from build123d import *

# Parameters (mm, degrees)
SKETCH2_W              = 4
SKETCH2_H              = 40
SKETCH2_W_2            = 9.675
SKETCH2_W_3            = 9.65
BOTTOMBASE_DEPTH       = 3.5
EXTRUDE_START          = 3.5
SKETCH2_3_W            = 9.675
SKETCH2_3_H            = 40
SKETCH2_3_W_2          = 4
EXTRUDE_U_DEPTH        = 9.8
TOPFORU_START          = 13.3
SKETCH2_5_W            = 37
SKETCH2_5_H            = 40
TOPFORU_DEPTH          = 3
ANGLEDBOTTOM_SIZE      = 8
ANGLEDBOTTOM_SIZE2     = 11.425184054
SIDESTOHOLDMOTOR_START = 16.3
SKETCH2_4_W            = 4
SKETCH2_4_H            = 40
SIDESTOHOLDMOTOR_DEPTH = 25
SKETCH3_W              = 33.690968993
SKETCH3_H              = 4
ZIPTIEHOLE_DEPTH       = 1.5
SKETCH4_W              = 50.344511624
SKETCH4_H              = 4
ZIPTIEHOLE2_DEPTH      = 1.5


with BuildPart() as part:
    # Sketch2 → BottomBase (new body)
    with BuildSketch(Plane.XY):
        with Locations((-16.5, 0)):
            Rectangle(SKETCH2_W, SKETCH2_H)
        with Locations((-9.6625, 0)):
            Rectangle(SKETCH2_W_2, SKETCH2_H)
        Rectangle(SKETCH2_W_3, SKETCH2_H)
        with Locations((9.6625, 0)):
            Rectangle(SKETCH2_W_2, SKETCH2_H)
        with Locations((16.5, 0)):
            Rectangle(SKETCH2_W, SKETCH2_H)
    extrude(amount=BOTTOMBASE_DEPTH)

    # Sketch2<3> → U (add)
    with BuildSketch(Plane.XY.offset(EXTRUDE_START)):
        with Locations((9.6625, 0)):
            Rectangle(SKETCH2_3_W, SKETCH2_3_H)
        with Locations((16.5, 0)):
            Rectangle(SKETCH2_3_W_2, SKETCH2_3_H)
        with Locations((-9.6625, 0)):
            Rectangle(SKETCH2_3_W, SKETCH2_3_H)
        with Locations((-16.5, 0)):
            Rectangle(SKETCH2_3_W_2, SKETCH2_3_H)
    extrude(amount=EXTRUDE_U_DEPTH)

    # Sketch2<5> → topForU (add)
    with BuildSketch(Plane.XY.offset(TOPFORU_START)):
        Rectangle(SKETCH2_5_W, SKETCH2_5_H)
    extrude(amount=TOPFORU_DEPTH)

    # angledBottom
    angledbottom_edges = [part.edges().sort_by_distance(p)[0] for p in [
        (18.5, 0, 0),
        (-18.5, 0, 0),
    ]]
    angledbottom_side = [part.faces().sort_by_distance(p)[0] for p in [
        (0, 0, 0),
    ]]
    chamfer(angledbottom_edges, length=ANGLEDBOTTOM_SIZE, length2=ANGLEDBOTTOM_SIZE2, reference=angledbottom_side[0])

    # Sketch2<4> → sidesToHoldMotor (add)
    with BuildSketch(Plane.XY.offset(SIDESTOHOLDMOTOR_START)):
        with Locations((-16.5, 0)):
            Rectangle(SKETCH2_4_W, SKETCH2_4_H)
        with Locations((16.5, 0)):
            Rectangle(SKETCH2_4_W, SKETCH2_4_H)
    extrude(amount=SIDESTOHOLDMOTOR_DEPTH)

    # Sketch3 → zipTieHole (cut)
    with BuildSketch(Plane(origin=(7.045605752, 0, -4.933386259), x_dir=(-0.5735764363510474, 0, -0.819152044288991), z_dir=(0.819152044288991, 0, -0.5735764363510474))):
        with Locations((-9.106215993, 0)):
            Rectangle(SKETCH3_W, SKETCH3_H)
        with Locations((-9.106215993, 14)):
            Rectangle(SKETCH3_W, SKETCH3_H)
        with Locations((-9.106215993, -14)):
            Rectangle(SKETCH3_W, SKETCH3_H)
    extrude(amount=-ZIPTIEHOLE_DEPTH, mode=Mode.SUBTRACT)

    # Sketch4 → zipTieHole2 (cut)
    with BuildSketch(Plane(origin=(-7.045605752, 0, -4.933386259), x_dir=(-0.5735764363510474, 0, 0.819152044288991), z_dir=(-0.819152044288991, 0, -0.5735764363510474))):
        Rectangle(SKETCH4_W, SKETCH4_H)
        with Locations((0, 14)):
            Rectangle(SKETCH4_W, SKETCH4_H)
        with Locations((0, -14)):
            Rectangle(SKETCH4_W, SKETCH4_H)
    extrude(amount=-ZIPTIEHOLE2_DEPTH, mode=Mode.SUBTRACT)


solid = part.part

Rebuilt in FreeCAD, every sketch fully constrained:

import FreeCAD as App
import Part
import Sketcher


def edges_at(feature, points):
    """Names of the edges that pass closest to the given points."""
    edges = feature.Shape.Edges
    near = lambda p: min(range(len(edges)), key=lambda i: edges[i].distToShape(Part.Vertex(*p))[0])
    return sorted({f"Edge{near(p) + 1}" for p in points})

doc = App.newDocument("Part")
params = doc.addObject("Spreadsheet::Sheet", "Params")
for row, (alias, value) in enumerate([
    ("sketch1_width", "37 mm"),
    ("sketch1_height", "40 mm"),
    ("pad1_length", "3.5 mm"),
    ("sketch2_height", "40 mm"),
    ("pad2_length", "9.8 mm"),
    ("sketch3_width", "37 mm"),
    ("sketch3_height", "40 mm"),
    ("pad3_length", "3 mm"),
    ("chamfer_size", "8 mm"),
    ("chamfer_size2", "11.425184 mm"),
    ("sketch4_width", "4 mm"),
    ("sketch4_height", "40 mm"),
    ("pad4_length", "25 mm"),
    ("sketch5_height", "4 mm"),
    ("pocket1_length", "1.5 mm"),
    ("sketch6_height", "4 mm"),
    ("pocket2_length", "1.5 mm"),
], start=1):
    params.set(f"A{row}", alias)
    params.set(f"B{row}", "=" + value)
    params.setAlias(f"B{row}", alias)

body = doc.addObject("PartDesign::Body", "Body")

sketch1 = doc.addObject("Sketcher::SketchObject", "Sketch")
body.addObject(sketch1)
sketch1.AttachmentSupport = (doc.XY_Plane, [""])
sketch1.MapMode = "FlatFace"
sketch1.addGeometry(Part.LineSegment(App.Vector(-18, 20, 0), App.Vector(-18, -20, 0)), False)
sketch1.addGeometry(Part.LineSegment(App.Vector(-18, -20, 0), App.Vector(18, -20, 0)), False)
sketch1.addGeometry(Part.LineSegment(App.Vector(18, -20, 0), App.Vector(18, 20, 0)), False)
sketch1.addGeometry(Part.LineSegment(App.Vector(18, 20, 0), App.Vector(-18, 20, 0)), False)
sketch1.addConstraint(Sketcher.Constraint("Coincident", 0, 2, 1, 1))
sketch1.addConstraint(Sketcher.Constraint("Coincident", 1, 2, 2, 1))
sketch1.addConstraint(Sketcher.Constraint("Coincident", 2, 2, 3, 1))
sketch1.addConstraint(Sketcher.Constraint("Coincident", 3, 2, 0, 1))
sketch1.addConstraint(Sketcher.Constraint("Vertical", 0))
sketch1.addConstraint(Sketcher.Constraint("Horizontal", 1))
sketch1.addConstraint(Sketcher.Constraint("Vertical", 2))
sketch1.addConstraint(Sketcher.Constraint("Horizontal", 3))
sketch1.addConstraint(Sketcher.Constraint("Symmetric", 0, 2, 2, 2, -1, 1))
sketch1.addConstraint(Sketcher.Constraint("DistanceX", 1, 1, 1, 2, 37.0))
sketch1.addConstraint(Sketcher.Constraint("DistanceY", 0, 2, 0, 1, 40.0))
sketch1.setExpression("Constraints[9]", "Params.sketch1_width")
sketch1.setExpression("Constraints[10]", "Params.sketch1_height")
pad1 = doc.addObject("PartDesign::Pad", "Pad")
body.addObject(pad1)
pad1.Profile = sketch1
pad1.setExpression("Length", "Params.pad1_length")

sketch2 = doc.addObject("Sketcher::SketchObject", "Sketch001")
body.addObject(sketch2)
sketch2.AttachmentSupport = (doc.XY_Plane, [""])
sketch2.MapMode = "FlatFace"
sketch2.AttachmentOffset = App.Placement(App.Vector(0, 0, 3.5), App.Rotation())
sketch2.addGeometry(Part.LineSegment(App.Vector(5, 20, 0), App.Vector(5, -20, 0)), False)
sketch2.addGeometry(Part.LineSegment(App.Vector(5, -20, 0), App.Vector(18, -20, 0)), False)
sketch2.addGeometry(Part.LineSegment(App.Vector(18, -20, 0), App.Vector(18, 20, 0)), False)
sketch2.addGeometry(Part.LineSegment(App.Vector(18, 20, 0), App.Vector(5, 20, 0)), False)
sketch2.addGeometry(Part.LineSegment(App.Vector(-5, -20, 0), App.Vector(-5, 20, 0)), False)
sketch2.addGeometry(Part.LineSegment(App.Vector(-5, 20, 0), App.Vector(-18, 20, 0)), False)
sketch2.addGeometry(Part.LineSegment(App.Vector(-18, 20, 0), App.Vector(-18, -20, 0)), False)
sketch2.addGeometry(Part.LineSegment(App.Vector(-18, -20, 0), App.Vector(-5, -20, 0)), False)
sketch2.addConstraint(Sketcher.Constraint("Coincident", 0, 2, 1, 1))
sketch2.addConstraint(Sketcher.Constraint("Coincident", 1, 2, 2, 1))
sketch2.addConstraint(Sketcher.Constraint("Coincident", 2, 2, 3, 1))
sketch2.addConstraint(Sketcher.Constraint("Coincident", 3, 2, 0, 1))
sketch2.addConstraint(Sketcher.Constraint("Coincident", 4, 2, 5, 1))
sketch2.addConstraint(Sketcher.Constraint("Coincident", 5, 2, 6, 1))
sketch2.addConstraint(Sketcher.Constraint("Coincident", 6, 2, 7, 1))
sketch2.addConstraint(Sketcher.Constraint("Coincident", 7, 2, 4, 1))
sketch2.addConstraint(Sketcher.Constraint("Vertical", 0))
sketch2.addConstraint(Sketcher.Constraint("Horizontal", 1))
sketch2.addConstraint(Sketcher.Constraint("Vertical", 2))
sketch2.addConstraint(Sketcher.Constraint("Horizontal", 3))
sketch2.addConstraint(Sketcher.Constraint("Vertical", 4))
sketch2.addConstraint(Sketcher.Constraint("Horizontal", 5))
sketch2.addConstraint(Sketcher.Constraint("Vertical", 6))
sketch2.addConstraint(Sketcher.Constraint("Horizontal", 7))
sketch2.addConstraint(Sketcher.Constraint("Symmetric", 0, 2, 4, 2, -1, 1))
sketch2.addConstraint(Sketcher.Constraint("Symmetric", 2, 2, 6, 2, -1, 1))
sketch2.addConstraint(Sketcher.Constraint("Horizontal", 3, 2, 4, 2))
sketch2.addConstraint(Sketcher.Constraint("DistanceY", 0, 2, 0, 1, 40.0))
sketch2.addConstraint(Sketcher.Constraint("DistanceX", 5, 2, 2, 2, 37.0))
sketch2.addConstraint(Sketcher.Constraint("DistanceX", 1, 1, 1, 2, 13.675))
sketch2.setExpression("Constraints[19]", "Params.sketch2_height")
pad2 = doc.addObject("PartDesign::Pad", "Pad001")
body.addObject(pad2)
pad2.Profile = sketch2
pad2.setExpression("Length", "Params.pad2_length")

sketch3 = doc.addObject("Sketcher::SketchObject", "Sketch002")
body.addObject(sketch3)
sketch3.AttachmentSupport = (doc.XY_Plane, [""])
sketch3.MapMode = "FlatFace"
sketch3.AttachmentOffset = App.Placement(App.Vector(0, 0, 13.3), App.Rotation())
sketch3.addGeometry(Part.LineSegment(App.Vector(-18, 20, 0), App.Vector(-18, -20, 0)), False)
sketch3.addGeometry(Part.LineSegment(App.Vector(-18, -20, 0), App.Vector(18, -20, 0)), False)
sketch3.addGeometry(Part.LineSegment(App.Vector(18, -20, 0), App.Vector(18, 20, 0)), False)
sketch3.addGeometry(Part.LineSegment(App.Vector(18, 20, 0), App.Vector(-18, 20, 0)), False)
sketch3.addConstraint(Sketcher.Constraint("Coincident", 0, 2, 1, 1))
sketch3.addConstraint(Sketcher.Constraint("Coincident", 1, 2, 2, 1))
sketch3.addConstraint(Sketcher.Constraint("Coincident", 2, 2, 3, 1))
sketch3.addConstraint(Sketcher.Constraint("Coincident", 3, 2, 0, 1))
sketch3.addConstraint(Sketcher.Constraint("Vertical", 0))
sketch3.addConstraint(Sketcher.Constraint("Horizontal", 1))
sketch3.addConstraint(Sketcher.Constraint("Vertical", 2))
sketch3.addConstraint(Sketcher.Constraint("Horizontal", 3))
sketch3.addConstraint(Sketcher.Constraint("Symmetric", 0, 2, 2, 2, -1, 1))
sketch3.addConstraint(Sketcher.Constraint("DistanceX", 1, 1, 1, 2, 37.0))
sketch3.addConstraint(Sketcher.Constraint("DistanceY", 0, 2, 0, 1, 40.0))
sketch3.setExpression("Constraints[9]", "Params.sketch3_width")
sketch3.setExpression("Constraints[10]", "Params.sketch3_height")
pad3 = doc.addObject("PartDesign::Pad", "Pad002")
body.addObject(pad3)
pad3.Profile = sketch3
pad3.setExpression("Length", "Params.pad3_length")
doc.recompute()

chamfer = doc.addObject("PartDesign::Chamfer", "Chamfer")
body.addObject(chamfer)
chamfer.Base = (pad3, edges_at(pad3, [(18.5, 0, 0), (-18.5, 0, 0)]))
chamfer.ChamferType = "Two distances"
chamfer.setExpression("Size", "Params.chamfer_size")
chamfer.setExpression("Size2", "Params.chamfer_size2")

sketch4 = doc.addObject("Sketcher::SketchObject", "Sketch003")
body.addObject(sketch4)
sketch4.AttachmentSupport = (doc.XY_Plane, [""])
sketch4.MapMode = "FlatFace"
sketch4.AttachmentOffset = App.Placement(App.Vector(0, 0, 16.3), App.Rotation())
sketch4.addGeometry(Part.LineSegment(App.Vector(-18.5, 20, 0), App.Vector(-18.5, -20, 0)), False)
sketch4.addGeometry(Part.LineSegment(App.Vector(-18.5, -20, 0), App.Vector(-14.5, -20, 0)), False)
sketch4.addGeometry(Part.LineSegment(App.Vector(-14.5, -20, 0), App.Vector(-14.5, 20, 0)), False)
sketch4.addGeometry(Part.LineSegment(App.Vector(-14.5, 20, 0), App.Vector(-18.5, 20, 0)), False)
sketch4.addGeometry(Part.LineSegment(App.Vector(14.5, 20, 0), App.Vector(14.5, -20, 0)), False)
sketch4.addGeometry(Part.LineSegment(App.Vector(14.5, -20, 0), App.Vector(18.5, -20, 0)), False)
sketch4.addGeometry(Part.LineSegment(App.Vector(18.5, -20, 0), App.Vector(18.5, 20, 0)), False)
sketch4.addGeometry(Part.LineSegment(App.Vector(18.5, 20, 0), App.Vector(14.5, 20, 0)), False)
sketch4.addConstraint(Sketcher.Constraint("Coincident", 0, 2, 1, 1))
sketch4.addConstraint(Sketcher.Constraint("Coincident", 1, 2, 2, 1))
sketch4.addConstraint(Sketcher.Constraint("Coincident", 2, 2, 3, 1))
sketch4.addConstraint(Sketcher.Constraint("Coincident", 3, 2, 0, 1))
sketch4.addConstraint(Sketcher.Constraint("Coincident", 4, 2, 5, 1))
sketch4.addConstraint(Sketcher.Constraint("Coincident", 5, 2, 6, 1))
sketch4.addConstraint(Sketcher.Constraint("Coincident", 6, 2, 7, 1))
sketch4.addConstraint(Sketcher.Constraint("Coincident", 7, 2, 4, 1))
sketch4.addConstraint(Sketcher.Constraint("Vertical", 0))
sketch4.addConstraint(Sketcher.Constraint("Horizontal", 1))
sketch4.addConstraint(Sketcher.Constraint("Vertical", 2))
sketch4.addConstraint(Sketcher.Constraint("Horizontal", 3))
sketch4.addConstraint(Sketcher.Constraint("Vertical", 4))
sketch4.addConstraint(Sketcher.Constraint("Horizontal", 5))
sketch4.addConstraint(Sketcher.Constraint("Vertical", 6))
sketch4.addConstraint(Sketcher.Constraint("Horizontal", 7))
sketch4.addConstraint(Sketcher.Constraint("Symmetric", 2, 2, 4, 2, -1, 1))
sketch4.addConstraint(Sketcher.Constraint("Symmetric", 0, 2, 6, 2, -1, 1))
sketch4.addConstraint(Sketcher.Constraint("Horizontal", 1, 2, 4, 2))
sketch4.addConstraint(Sketcher.Constraint("DistanceX", 1, 1, 1, 2, 4.0))
sketch4.addConstraint(Sketcher.Constraint("DistanceY", 0, 2, 0, 1, 40.0))
sketch4.addConstraint(Sketcher.Constraint("DistanceX", 1, 2, 4, 2, 29.0))
sketch4.setExpression("Constraints[19]", "Params.sketch4_width")
sketch4.setExpression("Constraints[20]", "Params.sketch4_height")
pad4 = doc.addObject("PartDesign::Pad", "Pad003")
body.addObject(pad4)
pad4.Profile = sketch4
pad4.setExpression("Length", "Params.pad4_length")

sketch5 = doc.addObject("Sketcher::SketchObject", "Sketch004")
body.addObject(sketch5)
sketch5.Placement = App.Placement(App.Vector(7.045606, 0, -4.933386), App.Rotation(App.Vector(-0.573576436, 0, -0.819152044), App.Vector(0, 0.999999999, 0), App.Vector(0.819152044, 0, -0.573576436), "ZXY"))
sketch5.addGeometry(Part.LineSegment(App.Vector(-26, 2, 0), App.Vector(-26, -2, 0)), False)
sketch5.addGeometry(Part.LineSegment(App.Vector(-26, -2, 0), App.Vector(7.7, -2, 0)), False)
sketch5.addGeometry(Part.LineSegment(App.Vector(7.7, -2, 0), App.Vector(7.7, 2, 0)), False)
sketch5.addGeometry(Part.LineSegment(App.Vector(7.7, 2, 0), App.Vector(-26, 2, 0)), False)
sketch5.addGeometry(Part.LineSegment(App.Vector(-26, 16, 0), App.Vector(-26, 12, 0)), False)
sketch5.addGeometry(Part.LineSegment(App.Vector(-26, 12, 0), App.Vector(7.7, 12, 0)), False)
sketch5.addGeometry(Part.LineSegment(App.Vector(7.7, 12, 0), App.Vector(7.7, 16, 0)), False)
sketch5.addGeometry(Part.LineSegment(App.Vector(7.7, 16, 0), App.Vector(-26, 16, 0)), False)
sketch5.addGeometry(Part.LineSegment(App.Vector(-26, -12, 0), App.Vector(-26, -16, 0)), False)
sketch5.addGeometry(Part.LineSegment(App.Vector(-26, -16, 0), App.Vector(7.7, -16, 0)), False)
sketch5.addGeometry(Part.LineSegment(App.Vector(7.7, -16, 0), App.Vector(7.7, -12, 0)), False)
sketch5.addGeometry(Part.LineSegment(App.Vector(7.7, -12, 0), App.Vector(-26, -12, 0)), False)
sketch5.addConstraint(Sketcher.Constraint("Coincident", 0, 2, 1, 1))
sketch5.addConstraint(Sketcher.Constraint("Coincident", 1, 2, 2, 1))
sketch5.addConstraint(Sketcher.Constraint("Coincident", 2, 2, 3, 1))
sketch5.addConstraint(Sketcher.Constraint("Coincident", 3, 2, 0, 1))
sketch5.addConstraint(Sketcher.Constraint("Coincident", 4, 2, 5, 1))
sketch5.addConstraint(Sketcher.Constraint("Coincident", 5, 2, 6, 1))
sketch5.addConstraint(Sketcher.Constraint("Coincident", 6, 2, 7, 1))
sketch5.addConstraint(Sketcher.Constraint("Coincident", 7, 2, 4, 1))
sketch5.addConstraint(Sketcher.Constraint("Coincident", 8, 2, 9, 1))
sketch5.addConstraint(Sketcher.Constraint("Coincident", 9, 2, 10, 1))
sketch5.addConstraint(Sketcher.Constraint("Coincident", 10, 2, 11, 1))
sketch5.addConstraint(Sketcher.Constraint("Coincident", 11, 2, 8, 1))
sketch5.addConstraint(Sketcher.Constraint("Vertical", 0))
sketch5.addConstraint(Sketcher.Constraint("Horizontal", 1))
sketch5.addConstraint(Sketcher.Constraint("Vertical", 2))
sketch5.addConstraint(Sketcher.Constraint("Horizontal", 3))
sketch5.addConstraint(Sketcher.Constraint("Vertical", 4))
sketch5.addConstraint(Sketcher.Constraint("Horizontal", 5))
sketch5.addConstraint(Sketcher.Constraint("Vertical", 6))
sketch5.addConstraint(Sketcher.Constraint("Horizontal", 7))
sketch5.addConstraint(Sketcher.Constraint("Vertical", 8))
sketch5.addConstraint(Sketcher.Constraint("Horizontal", 9))
sketch5.addConstraint(Sketcher.Constraint("Vertical", 10))
sketch5.addConstraint(Sketcher.Constraint("Horizontal", 11))
sketch5.addConstraint(Sketcher.Constraint("Symmetric", 7, 2, 8, 2, -1))
sketch5.addConstraint(Sketcher.Constraint("Symmetric", 5, 2, 10, 2, -1))
sketch5.addConstraint(Sketcher.Constraint("Vertical", 3, 2, 4, 2))
sketch5.addConstraint(Sketcher.Constraint("Vertical", 2, 2, 5, 2))
sketch5.addConstraint(Sketcher.Constraint("Equal", 2, 4))
sketch5.addConstraint(Sketcher.Constraint("DistanceY", 0, 2, 0, 1, 4.0))
sketch5.addConstraint(Sketcher.Constraint("DistanceY", 0, 2, -1, 1, 2.0))
sketch5.addConstraint(Sketcher.Constraint("DistanceY", -1, 1, 4, 2, 12.0))
sketch5.addConstraint(Sketcher.Constraint("DistanceX", 1, 1, 1, 2, 33.690969))
sketch5.addConstraint(Sketcher.Constraint("DistanceX", 0, 2, -1, 1, 25.9517))
sketch5.setExpression("Constraints[29]", "Params.sketch5_height")
pocket1 = doc.addObject("PartDesign::Pocket", "Pocket")
body.addObject(pocket1)
pocket1.Profile = sketch5
pocket1.setExpression("Length", "Params.pocket1_length")

sketch6 = doc.addObject("Sketcher::SketchObject", "Sketch005")
body.addObject(sketch6)
sketch6.Placement = App.Placement(App.Vector(-7.045606, 0, -4.933386), App.Rotation(App.Vector(-0.573576436, 0, 0.819152044), App.Vector(0, 0.999999999, 0), App.Vector(-0.819152044, 0, -0.573576436), "ZXY"))
sketch6.addGeometry(Part.LineSegment(App.Vector(-25.2, 2, 0), App.Vector(-25.2, -2, 0)), False)
sketch6.addGeometry(Part.LineSegment(App.Vector(-25.2, -2, 0), App.Vector(25.2, -2, 0)), False)
sketch6.addGeometry(Part.LineSegment(App.Vector(25.2, -2, 0), App.Vector(25.2, 2, 0)), False)
sketch6.addGeometry(Part.LineSegment(App.Vector(25.2, 2, 0), App.Vector(-25.2, 2, 0)), False)
sketch6.addGeometry(Part.LineSegment(App.Vector(-25.2, 16, 0), App.Vector(-25.2, 12, 0)), False)
sketch6.addGeometry(Part.LineSegment(App.Vector(-25.2, 12, 0), App.Vector(25.2, 12, 0)), False)
sketch6.addGeometry(Part.LineSegment(App.Vector(25.2, 12, 0), App.Vector(25.2, 16, 0)), False)
sketch6.addGeometry(Part.LineSegment(App.Vector(25.2, 16, 0), App.Vector(-25.2, 16, 0)), False)
sketch6.addGeometry(Part.LineSegment(App.Vector(-25.2, -12, 0), App.Vector(-25.2, -16, 0)), False)
sketch6.addGeometry(Part.LineSegment(App.Vector(-25.2, -16, 0), App.Vector(25.2, -16, 0)), False)
sketch6.addGeometry(Part.LineSegment(App.Vector(25.2, -16, 0), App.Vector(25.2, -12, 0)), False)
sketch6.addGeometry(Part.LineSegment(App.Vector(25.2, -12, 0), App.Vector(-25.2, -12, 0)), False)
sketch6.addConstraint(Sketcher.Constraint("Coincident", 0, 2, 1, 1))
sketch6.addConstraint(Sketcher.Constraint("Coincident", 1, 2, 2, 1))
sketch6.addConstraint(Sketcher.Constraint("Coincident", 2, 2, 3, 1))
sketch6.addConstraint(Sketcher.Constraint("Coincident", 3, 2, 0, 1))
sketch6.addConstraint(Sketcher.Constraint("Coincident", 4, 2, 5, 1))
sketch6.addConstraint(Sketcher.Constraint("Coincident", 5, 2, 6, 1))
sketch6.addConstraint(Sketcher.Constraint("Coincident", 6, 2, 7, 1))
sketch6.addConstraint(Sketcher.Constraint("Coincident", 7, 2, 4, 1))
sketch6.addConstraint(Sketcher.Constraint("Coincident", 8, 2, 9, 1))
sketch6.addConstraint(Sketcher.Constraint("Coincident", 9, 2, 10, 1))
sketch6.addConstraint(Sketcher.Constraint("Coincident", 10, 2, 11, 1))
sketch6.addConstraint(Sketcher.Constraint("Coincident", 11, 2, 8, 1))
sketch6.addConstraint(Sketcher.Constraint("Vertical", 0))
sketch6.addConstraint(Sketcher.Constraint("Horizontal", 1))
sketch6.addConstraint(Sketcher.Constraint("Vertical", 2))
sketch6.addConstraint(Sketcher.Constraint("Horizontal", 3))
sketch6.addConstraint(Sketcher.Constraint("Vertical", 4))
sketch6.addConstraint(Sketcher.Constraint("Horizontal", 5))
sketch6.addConstraint(Sketcher.Constraint("Vertical", 6))
sketch6.addConstraint(Sketcher.Constraint("Horizontal", 7))
sketch6.addConstraint(Sketcher.Constraint("Vertical", 8))
sketch6.addConstraint(Sketcher.Constraint("Horizontal", 9))
sketch6.addConstraint(Sketcher.Constraint("Vertical", 10))
sketch6.addConstraint(Sketcher.Constraint("Horizontal", 11))
sketch6.addConstraint(Sketcher.Constraint("Symmetric", 0, 2, 2, 2, -1, 1))
sketch6.addConstraint(Sketcher.Constraint("Symmetric", 6, 2, 8, 2, -1, 1))
sketch6.addConstraint(Sketcher.Constraint("Symmetric", 4, 2, 10, 2, -1, 1))
sketch6.addConstraint(Sketcher.Constraint("Vertical", 3, 2, 4, 2))
sketch6.addConstraint(Sketcher.Constraint("Vertical", 2, 2, 5, 2))
sketch6.addConstraint(Sketcher.Constraint("Equal", 2, 4))
sketch6.addConstraint(Sketcher.Constraint("DistanceY", 0, 2, 0, 1, 4.0))
sketch6.addConstraint(Sketcher.Constraint("DistanceY", -1, 1, 4, 2, 12.0))
sketch6.addConstraint(Sketcher.Constraint("DistanceX", 1, 1, 1, 2, 50.344512))
sketch6.setExpression("Constraints[30]", "Params.sketch6_height")
pocket2 = doc.addObject("PartDesign::Pocket", "Pocket001")
body.addObject(pocket2)
pocket2.Profile = sketch6
pocket2.setExpression("Length", "Params.pocket2_length")

doc.recompute()
